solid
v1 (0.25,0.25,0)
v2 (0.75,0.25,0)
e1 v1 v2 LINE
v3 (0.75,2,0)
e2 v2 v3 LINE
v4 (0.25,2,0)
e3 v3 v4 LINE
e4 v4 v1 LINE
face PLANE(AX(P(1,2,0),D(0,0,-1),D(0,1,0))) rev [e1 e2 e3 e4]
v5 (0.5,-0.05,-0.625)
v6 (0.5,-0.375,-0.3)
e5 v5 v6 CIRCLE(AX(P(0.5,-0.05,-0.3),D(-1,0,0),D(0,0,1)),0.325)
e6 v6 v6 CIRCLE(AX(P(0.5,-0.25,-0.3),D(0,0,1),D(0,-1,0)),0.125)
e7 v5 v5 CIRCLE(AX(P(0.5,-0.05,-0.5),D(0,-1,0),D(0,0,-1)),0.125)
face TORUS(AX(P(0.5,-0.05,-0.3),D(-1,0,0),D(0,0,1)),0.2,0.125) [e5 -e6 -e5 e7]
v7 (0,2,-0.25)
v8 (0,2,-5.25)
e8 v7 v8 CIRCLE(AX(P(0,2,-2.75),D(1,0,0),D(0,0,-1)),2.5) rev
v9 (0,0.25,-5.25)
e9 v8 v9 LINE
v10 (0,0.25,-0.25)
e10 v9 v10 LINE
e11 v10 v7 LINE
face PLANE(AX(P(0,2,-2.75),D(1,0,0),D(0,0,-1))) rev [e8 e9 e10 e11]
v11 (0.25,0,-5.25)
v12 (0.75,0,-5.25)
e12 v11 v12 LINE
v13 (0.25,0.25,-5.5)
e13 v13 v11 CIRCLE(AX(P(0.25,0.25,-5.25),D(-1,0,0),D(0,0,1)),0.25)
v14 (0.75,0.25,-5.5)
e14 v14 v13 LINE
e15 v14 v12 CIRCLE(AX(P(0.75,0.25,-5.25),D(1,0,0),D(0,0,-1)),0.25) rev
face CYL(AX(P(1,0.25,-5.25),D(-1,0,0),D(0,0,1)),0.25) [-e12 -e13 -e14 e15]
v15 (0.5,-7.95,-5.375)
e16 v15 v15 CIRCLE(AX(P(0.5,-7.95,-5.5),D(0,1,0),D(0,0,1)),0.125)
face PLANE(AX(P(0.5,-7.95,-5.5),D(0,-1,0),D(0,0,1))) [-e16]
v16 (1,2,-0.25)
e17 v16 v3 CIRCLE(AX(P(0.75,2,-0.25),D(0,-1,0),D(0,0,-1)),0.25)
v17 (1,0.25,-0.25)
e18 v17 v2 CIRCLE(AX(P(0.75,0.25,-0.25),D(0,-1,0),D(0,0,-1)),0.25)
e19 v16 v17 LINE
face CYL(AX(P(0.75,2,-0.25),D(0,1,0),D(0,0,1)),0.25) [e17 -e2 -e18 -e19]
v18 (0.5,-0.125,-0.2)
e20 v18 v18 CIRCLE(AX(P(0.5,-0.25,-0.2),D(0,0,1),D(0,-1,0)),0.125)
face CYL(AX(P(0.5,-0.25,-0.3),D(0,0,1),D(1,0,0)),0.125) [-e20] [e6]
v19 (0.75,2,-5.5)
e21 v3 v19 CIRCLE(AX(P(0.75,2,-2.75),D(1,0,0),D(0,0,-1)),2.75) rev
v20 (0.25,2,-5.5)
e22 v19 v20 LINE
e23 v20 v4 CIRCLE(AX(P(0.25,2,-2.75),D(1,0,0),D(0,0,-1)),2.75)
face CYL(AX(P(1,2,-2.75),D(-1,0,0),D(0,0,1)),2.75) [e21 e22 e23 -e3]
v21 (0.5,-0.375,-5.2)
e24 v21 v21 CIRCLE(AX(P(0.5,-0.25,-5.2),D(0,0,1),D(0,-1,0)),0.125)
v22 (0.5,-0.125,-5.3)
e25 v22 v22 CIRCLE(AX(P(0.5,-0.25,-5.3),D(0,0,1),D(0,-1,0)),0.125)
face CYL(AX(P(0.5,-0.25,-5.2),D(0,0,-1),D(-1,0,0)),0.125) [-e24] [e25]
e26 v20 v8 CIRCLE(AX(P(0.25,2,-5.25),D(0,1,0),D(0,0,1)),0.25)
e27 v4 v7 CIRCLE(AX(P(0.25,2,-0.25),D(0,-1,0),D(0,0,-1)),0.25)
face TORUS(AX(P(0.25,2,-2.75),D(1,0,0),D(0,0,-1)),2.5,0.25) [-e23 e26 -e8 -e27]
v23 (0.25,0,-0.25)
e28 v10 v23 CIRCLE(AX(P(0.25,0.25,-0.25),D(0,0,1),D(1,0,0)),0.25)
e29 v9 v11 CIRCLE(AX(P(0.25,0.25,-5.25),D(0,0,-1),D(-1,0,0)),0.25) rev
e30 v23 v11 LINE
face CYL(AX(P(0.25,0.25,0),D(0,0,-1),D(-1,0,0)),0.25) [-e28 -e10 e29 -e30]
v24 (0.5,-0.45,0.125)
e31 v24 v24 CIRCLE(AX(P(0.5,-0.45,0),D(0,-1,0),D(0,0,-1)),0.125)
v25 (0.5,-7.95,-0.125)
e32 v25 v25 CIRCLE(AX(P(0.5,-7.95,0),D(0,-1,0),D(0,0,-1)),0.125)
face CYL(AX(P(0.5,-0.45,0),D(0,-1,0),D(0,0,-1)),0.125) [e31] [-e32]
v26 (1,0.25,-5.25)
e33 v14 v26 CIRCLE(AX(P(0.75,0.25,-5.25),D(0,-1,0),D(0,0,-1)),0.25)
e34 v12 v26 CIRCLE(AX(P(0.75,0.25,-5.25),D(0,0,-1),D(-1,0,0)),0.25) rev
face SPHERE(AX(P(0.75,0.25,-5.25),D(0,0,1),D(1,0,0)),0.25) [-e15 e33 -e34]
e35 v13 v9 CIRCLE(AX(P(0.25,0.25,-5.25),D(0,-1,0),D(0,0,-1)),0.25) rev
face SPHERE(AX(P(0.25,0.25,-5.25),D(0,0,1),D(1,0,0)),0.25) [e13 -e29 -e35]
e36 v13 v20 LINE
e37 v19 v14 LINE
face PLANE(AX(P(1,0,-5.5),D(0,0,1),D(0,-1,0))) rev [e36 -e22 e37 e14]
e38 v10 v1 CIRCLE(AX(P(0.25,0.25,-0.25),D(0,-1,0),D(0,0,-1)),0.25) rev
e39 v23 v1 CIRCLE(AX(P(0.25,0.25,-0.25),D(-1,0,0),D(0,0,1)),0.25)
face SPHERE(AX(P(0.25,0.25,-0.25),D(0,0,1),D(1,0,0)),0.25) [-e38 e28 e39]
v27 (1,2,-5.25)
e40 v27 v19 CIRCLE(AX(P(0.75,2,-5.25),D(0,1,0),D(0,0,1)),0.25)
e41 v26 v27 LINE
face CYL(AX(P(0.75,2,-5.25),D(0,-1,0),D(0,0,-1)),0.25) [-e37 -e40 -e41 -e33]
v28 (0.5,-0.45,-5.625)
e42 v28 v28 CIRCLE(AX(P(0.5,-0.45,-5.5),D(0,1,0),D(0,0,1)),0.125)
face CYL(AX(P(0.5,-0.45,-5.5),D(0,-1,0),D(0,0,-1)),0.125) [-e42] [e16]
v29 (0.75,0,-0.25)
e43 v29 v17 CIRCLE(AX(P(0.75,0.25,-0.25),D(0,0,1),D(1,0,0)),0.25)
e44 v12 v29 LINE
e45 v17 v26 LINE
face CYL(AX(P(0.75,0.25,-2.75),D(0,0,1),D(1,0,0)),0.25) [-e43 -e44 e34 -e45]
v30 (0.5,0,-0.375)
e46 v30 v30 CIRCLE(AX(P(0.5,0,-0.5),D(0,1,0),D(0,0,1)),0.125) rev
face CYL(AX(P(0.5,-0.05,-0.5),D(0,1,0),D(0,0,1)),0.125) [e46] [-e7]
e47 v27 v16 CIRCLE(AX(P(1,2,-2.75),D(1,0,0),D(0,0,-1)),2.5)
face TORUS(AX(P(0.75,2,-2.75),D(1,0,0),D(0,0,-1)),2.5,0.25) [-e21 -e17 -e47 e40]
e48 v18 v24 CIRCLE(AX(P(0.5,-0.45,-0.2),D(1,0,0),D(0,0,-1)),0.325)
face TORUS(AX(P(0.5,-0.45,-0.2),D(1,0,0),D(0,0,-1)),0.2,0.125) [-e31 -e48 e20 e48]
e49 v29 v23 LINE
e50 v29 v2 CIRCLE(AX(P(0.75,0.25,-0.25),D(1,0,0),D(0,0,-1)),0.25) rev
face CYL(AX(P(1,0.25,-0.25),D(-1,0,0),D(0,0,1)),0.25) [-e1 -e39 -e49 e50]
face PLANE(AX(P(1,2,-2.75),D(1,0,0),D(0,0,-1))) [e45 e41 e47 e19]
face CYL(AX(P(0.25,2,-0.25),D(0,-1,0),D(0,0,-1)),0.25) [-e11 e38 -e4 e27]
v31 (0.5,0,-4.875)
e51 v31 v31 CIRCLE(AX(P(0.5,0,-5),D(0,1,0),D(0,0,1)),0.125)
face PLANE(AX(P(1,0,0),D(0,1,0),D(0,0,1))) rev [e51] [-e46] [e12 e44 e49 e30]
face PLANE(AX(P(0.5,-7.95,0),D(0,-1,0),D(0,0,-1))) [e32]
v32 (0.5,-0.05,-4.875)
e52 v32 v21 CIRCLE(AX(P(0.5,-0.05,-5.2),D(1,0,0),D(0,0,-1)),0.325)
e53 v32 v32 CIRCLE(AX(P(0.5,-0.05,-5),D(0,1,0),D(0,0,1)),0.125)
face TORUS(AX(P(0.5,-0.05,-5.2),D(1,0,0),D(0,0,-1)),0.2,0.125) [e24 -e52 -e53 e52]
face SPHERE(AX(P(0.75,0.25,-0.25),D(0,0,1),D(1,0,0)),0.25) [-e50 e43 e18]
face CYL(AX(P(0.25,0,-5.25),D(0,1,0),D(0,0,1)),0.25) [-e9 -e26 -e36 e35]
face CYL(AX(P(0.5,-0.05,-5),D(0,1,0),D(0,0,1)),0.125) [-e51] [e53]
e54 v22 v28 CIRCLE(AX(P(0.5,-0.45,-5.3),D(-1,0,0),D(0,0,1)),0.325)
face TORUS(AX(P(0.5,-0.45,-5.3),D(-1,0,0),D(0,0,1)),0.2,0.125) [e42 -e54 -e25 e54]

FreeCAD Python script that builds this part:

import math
import FreeCAD as App
import Part
import Sketcher

doc = App.newDocument("Part")
body = doc.addObject("PartDesign::Body", "Body")

# Sketch on YZ plane
sketch1 = body.newObject("Sketcher::SketchObject", "Sketch")
sketch1.AttachmentSupport = (doc.getObject("YZ_Plane"), [""])
sketch1.MapMode = "FlatFace"
sketch1.addGeometry([
    Part.LineSegment(App.Vector(2, 0, 0), App.Vector(0, 0, 0)),
    Part.LineSegment(App.Vector(0, 0, 0), App.Vector(0, -5.5, 0)),
    Part.LineSegment(App.Vector(0, -5.5, 0), App.Vector(2, -5.5, 0)),
    Part.ArcOfCircle(Part.Circle(App.Vector(2, -2.75, 0), App.Vector(0, 0, 1), 2.75), math.radians(-90), math.radians(90)),
], False)
sketch1.addConstraint([
    Sketcher.Constraint("Coincident", 0, 2, 1, 1),
    Sketcher.Constraint("Coincident", 1, 2, 2, 1),
    Sketcher.Constraint("Tangent", 2, 2, 3, 1),
    Sketcher.Constraint("Tangent", 3, 2, 0, 1),
    Sketcher.Constraint("Horizontal", 0),
    Sketcher.Constraint("Vertical", 1),
    Sketcher.Constraint("Horizontal", 2),
    Sketcher.Constraint("Coincident", 0, 2, -1, 1),
    Sketcher.Constraint("DistanceX", 0, 2, 0, 1, 2.0),
    Sketcher.Constraint("Radius", 3, 2.75),
])
pad1 = body.newObject("PartDesign::Pad", "Pad")
pad1.Profile = sketch1
pad1.Length = 1
doc.recompute()

fillet = body.newObject("PartDesign::Fillet", "Fillet")
fillet.Base = (pad1, ["Edge1"])
fillet.UseAllEdges = True
fillet.Radius = 0.25

# Sketch on XZ plane
sketch2 = body.newObject("Sketcher::SketchObject", "Sketch001")
sketch2.AttachmentSupport = (doc.getObject("XZ_Plane"), [""])
sketch2.MapMode = "FlatFace"
sketch2.addGeometry(Part.Circle(App.Vector(0.5, -0.5, 0), App.Vector(0, 0, 1), 0.125), False)
sketch2.addConstraint([
    Sketcher.Constraint("Diameter", 0, 0.25),
    Sketcher.Constraint("DistanceX", -1, 1, 0, 3, 0.5),
    Sketcher.Constraint("DistanceY", 0, 3, -1, 1, 0.5),
])

# Sketch on YZ plane
sketch3 = body.newObject("Sketcher::SketchObject", "Sketch002")
sketch3.AttachmentSupport = (doc.getObject("YZ_Plane"), [""])
sketch3.MapMode = "FlatFace"
sketch3.AttachmentOffset = App.Placement(App.Vector(0, 0, 0.5), App.Rotation())
sketch3.addGeometry([
    Part.LineSegment(App.Vector(0, -0.5, 0), App.Vector(-0.05, -0.5, 0)),  # 0
    Part.ArcOfCircle(Part.Circle(App.Vector(-0.05, -0.3, 0), App.Vector(0, 0, 1), 0.2), math.radians(-180), math.radians(-90)),  # 1
    Part.LineSegment(App.Vector(-0.25, -0.3, 0), App.Vector(-0.25, -0.2, 0)),  # 2
    Part.ArcOfCircle(Part.Circle(App.Vector(-0.45, -0.2, 0), App.Vector(0, 0, 1), 0.2), math.radians(0), math.radians(90)),  # 3
    Part.LineSegment(App.Vector(-0.45, 0, 0), App.Vector(-7.95, 0, 0)),  # 4
], False)
sketch3.addConstraint([
    Sketcher.Constraint("Tangent", 0, 2, 1, 2),
    Sketcher.Constraint("Tangent", 1, 1, 2, 1),
    Sketcher.Constraint("Tangent", 2, 2, 3, 1),
    Sketcher.Constraint("Tangent", 3, 2, 4, 1),
    Sketcher.Constraint("Horizontal", 0),
    Sketcher.Constraint("Vertical", 2),
    Sketcher.Constraint("Horizontal", 4),
    Sketcher.Constraint("Equal", 1, 3),
    Sketcher.Constraint("PointOnObject", 0, 1, -2),
    Sketcher.Constraint("PointOnObject", 3, 2, -1),
    Sketcher.Constraint("Radius", 1, 0.2),
    Sketcher.Constraint("DistanceX", 4, 2, 4, 1, 7.5),
    Sketcher.Constraint("DistanceY", 2, 1, 2, 2, 0.1),
    Sketcher.Constraint("DistanceX", 0, 2, 0, 1, 0.05),
])
doc.recompute()

additivepipe = body.newObject("PartDesign::AdditivePipe", "AdditivePipe")
additivepipe.Profile = sketch2
additivepipe.Spine = (sketch3, ["Edge1", "Edge2", "Edge3", "Edge4", "Edge5"])
doc.recompute()

datumplane = body.newObject("PartDesign::Plane", "DatumPlane")
datumplane.AttachmentSupport = (doc.getObject("XY_Plane"), [""])
datumplane.MapMode = "FlatFace"
datumplane.AttachmentOffset = App.Placement(App.Vector(0, 0, -2.75), App.Rotation())
mirrored = body.newObject("PartDesign::Mirrored", "Mirrored")
mirrored.Originals = [additivepipe]
mirrored.MirrorPlane = (datumplane, [""])
body.Tip = mirrored

doc.recompute()
